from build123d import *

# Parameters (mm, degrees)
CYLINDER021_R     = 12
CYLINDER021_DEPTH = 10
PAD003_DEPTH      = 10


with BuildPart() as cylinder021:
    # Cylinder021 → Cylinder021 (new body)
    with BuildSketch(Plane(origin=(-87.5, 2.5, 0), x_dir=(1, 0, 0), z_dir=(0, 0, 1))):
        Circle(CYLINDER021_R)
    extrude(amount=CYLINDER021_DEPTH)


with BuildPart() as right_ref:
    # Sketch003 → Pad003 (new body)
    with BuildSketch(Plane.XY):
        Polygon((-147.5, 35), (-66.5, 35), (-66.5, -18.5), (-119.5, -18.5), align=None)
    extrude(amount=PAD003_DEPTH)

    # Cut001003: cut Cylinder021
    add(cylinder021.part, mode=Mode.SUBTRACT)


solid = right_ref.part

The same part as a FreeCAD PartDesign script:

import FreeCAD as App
import Part
import Sketcher

V = App.Vector


def add_polygon(sketch, points):
    """Adds a closed chain of lines whose ends are joined by coincident constraints."""
    first, n = sketch.GeometryCount, len(points)
    for a, b in zip(points, points[1:] + points[:1]):
        sketch.addGeometry(Part.LineSegment(App.Vector(*a, 0), App.Vector(*b, 0)), False)
    for i in range(n):
        sketch.addConstraint(Sketcher.Constraint("Coincident", first + i, 2, first + (i + 1) % n, 1))

doc = App.newDocument("Part")
body = doc.addObject("PartDesign::Body", "Body")

# Sketch on XY plane
sketch1 = body.newObject("Sketcher::SketchObject", "Sketch")
sketch1.AttachmentSupport = (doc.getObject("XY_Plane"), [""])
sketch1.MapMode = "FlatFace"
sketch1.addGeometry(Part.Circle(V(-88, 2, 0), V(0, 0, 1), 12), False)
sketch1.addConstraint([
    Sketcher.Constraint("Diameter", 0, 24.0),
    Sketcher.Constraint("DistanceX", 0, 3, -1, 1, 87.5),
    Sketcher.Constraint("DistanceY", -1, 1, 0, 3, 2.5),
])
pad1 = body.newObject("PartDesign::Pad", "Pad")
pad1.Profile = sketch1
pad1.Length = 10
body2 = doc.addObject("PartDesign::Body", "Body001")

# Sketch on XY plane
sketch2 = body2.newObject("Sketcher::SketchObject", "Sketch001")
sketch2.AttachmentSupport = (doc.getObject("XY_Plane001"), [""])
sketch2.MapMode = "FlatFace"
add_polygon(sketch2, [(-66, 35), (-148, 35), (-120, -18), (-66, -18)])  # lines 0-3
sketch2.addConstraint([
    Sketcher.Constraint("Horizontal", 0),
    Sketcher.Constraint("Horizontal", 2),
    Sketcher.Constraint("Vertical", 3),
    Sketcher.Constraint("DistanceX", 0, 2, 0, 1, 81.0),
    Sketcher.Constraint("DistanceX", 2, 1, 2, 2, 53.0),
    Sketcher.Constraint("DistanceY", 3, 1, 3, 2, 53.5),
    Sketcher.Constraint("DistanceY", -1, 1, 0, 2, 35.0),
    Sketcher.Constraint("DistanceX", 0, 2, -1, 1, 147.5),
])
pad2 = body2.newObject("PartDesign::Pad", "Pad001")
pad2.Profile = sketch2
pad2.Length = 10
doc.recompute()

boolean = body2.newObject("PartDesign::Boolean", "Boolean")
boolean.Type = "Cut"
boolean.addObjects([body])

doc.recompute()
